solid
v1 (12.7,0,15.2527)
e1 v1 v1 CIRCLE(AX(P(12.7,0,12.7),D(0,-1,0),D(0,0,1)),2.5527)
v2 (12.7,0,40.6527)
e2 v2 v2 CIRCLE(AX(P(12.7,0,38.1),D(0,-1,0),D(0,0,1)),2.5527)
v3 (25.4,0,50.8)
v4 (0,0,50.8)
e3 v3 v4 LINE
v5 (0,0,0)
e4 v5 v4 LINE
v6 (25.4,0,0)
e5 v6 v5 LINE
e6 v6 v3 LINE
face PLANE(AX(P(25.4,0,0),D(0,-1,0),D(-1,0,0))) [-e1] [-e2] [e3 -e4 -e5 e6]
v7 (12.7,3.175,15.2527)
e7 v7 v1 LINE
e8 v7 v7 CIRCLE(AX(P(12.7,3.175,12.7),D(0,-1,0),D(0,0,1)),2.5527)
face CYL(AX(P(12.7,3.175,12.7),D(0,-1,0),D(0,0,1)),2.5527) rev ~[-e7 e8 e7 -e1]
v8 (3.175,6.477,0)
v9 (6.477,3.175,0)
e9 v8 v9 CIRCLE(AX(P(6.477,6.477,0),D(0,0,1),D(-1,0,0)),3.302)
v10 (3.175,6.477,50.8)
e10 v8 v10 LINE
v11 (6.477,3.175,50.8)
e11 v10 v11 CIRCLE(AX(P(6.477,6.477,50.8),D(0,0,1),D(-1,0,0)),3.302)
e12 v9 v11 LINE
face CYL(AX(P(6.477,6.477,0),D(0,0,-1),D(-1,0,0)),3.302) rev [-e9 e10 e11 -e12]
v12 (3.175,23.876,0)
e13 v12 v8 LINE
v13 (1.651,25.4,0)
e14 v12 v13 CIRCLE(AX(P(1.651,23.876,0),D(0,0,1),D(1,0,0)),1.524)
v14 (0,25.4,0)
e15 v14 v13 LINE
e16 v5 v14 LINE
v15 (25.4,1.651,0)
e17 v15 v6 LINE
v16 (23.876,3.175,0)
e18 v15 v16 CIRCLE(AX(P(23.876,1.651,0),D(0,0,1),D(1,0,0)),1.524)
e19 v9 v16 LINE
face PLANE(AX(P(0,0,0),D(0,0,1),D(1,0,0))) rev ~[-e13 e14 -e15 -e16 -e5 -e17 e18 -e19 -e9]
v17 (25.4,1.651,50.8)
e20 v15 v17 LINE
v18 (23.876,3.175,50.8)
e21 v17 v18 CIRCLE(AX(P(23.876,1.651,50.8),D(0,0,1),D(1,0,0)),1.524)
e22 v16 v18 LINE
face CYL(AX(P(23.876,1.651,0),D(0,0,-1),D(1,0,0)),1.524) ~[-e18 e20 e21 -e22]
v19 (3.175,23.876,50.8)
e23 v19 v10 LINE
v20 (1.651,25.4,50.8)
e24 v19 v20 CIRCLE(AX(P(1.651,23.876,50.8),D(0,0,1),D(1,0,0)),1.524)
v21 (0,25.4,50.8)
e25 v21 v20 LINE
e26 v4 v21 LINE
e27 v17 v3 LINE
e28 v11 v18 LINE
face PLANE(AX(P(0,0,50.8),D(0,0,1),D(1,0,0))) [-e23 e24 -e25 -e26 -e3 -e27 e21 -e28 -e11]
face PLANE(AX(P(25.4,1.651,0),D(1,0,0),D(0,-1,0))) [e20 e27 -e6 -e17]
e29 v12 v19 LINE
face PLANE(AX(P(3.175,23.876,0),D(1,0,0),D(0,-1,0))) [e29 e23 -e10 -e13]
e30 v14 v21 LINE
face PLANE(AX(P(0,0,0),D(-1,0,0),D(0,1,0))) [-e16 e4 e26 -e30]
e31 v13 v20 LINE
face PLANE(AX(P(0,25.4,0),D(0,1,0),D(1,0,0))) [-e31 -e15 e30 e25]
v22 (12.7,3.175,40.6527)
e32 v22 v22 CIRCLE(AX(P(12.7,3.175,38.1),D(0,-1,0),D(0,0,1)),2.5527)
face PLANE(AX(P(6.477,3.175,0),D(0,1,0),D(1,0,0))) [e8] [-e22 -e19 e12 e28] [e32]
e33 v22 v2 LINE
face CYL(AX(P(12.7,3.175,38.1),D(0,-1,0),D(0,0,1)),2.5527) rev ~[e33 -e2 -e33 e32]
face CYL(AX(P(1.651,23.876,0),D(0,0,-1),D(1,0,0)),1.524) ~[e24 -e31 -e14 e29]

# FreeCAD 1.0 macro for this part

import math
import FreeCAD as App
import Part
import Sketcher
from FreeCAD import Vector
Q = App.Units.Quantity

doc = App.newDocument("Part")
body = doc.addObject("PartDesign::Body", "Body")

sketch1 = body.newObject("Sketcher::SketchObject", "Sketch")
sketch1.AttachmentSupport = (doc.getObject("XY_Plane"), [""])
sketch1.MapMode = "FlatFace"
sketch1.addGeometry([
    Part.LineSegment(Vector(0, 0, 0), Vector(25.4, 0, 0)),
    Part.LineSegment(Vector(25.4, 0, 0), Vector(25.4, 1.7, 0)),
    Part.ArcOfCircle(Part.Circle(Vector(23.9, 1.7, 0), Vector(0, 0, 1), 1.5), math.radians(0), math.radians(90)),
    Part.LineSegment(Vector(23.9, 3.2, 0), Vector(6.5, 3.2, 0)),
    Part.ArcOfCircle(Part.Circle(Vector(6.5, 6.5, 0), Vector(0, 0, 1), 3.3), math.radians(180), math.radians(270)),
    Part.LineSegment(Vector(3.2, 6.5, 0), Vector(3.2, 23.9, 0)),
    Part.ArcOfCircle(Part.Circle(Vector(1.7, 23.9, 0), Vector(0, 0, 1), 1.5), math.radians(0), math.radians(90)),
    Part.LineSegment(Vector(1.7, 25.4, 0), Vector(0, 25.4, 0)),
    Part.LineSegment(Vector(0, 25.4, 0), Vector(0, 0, 0)),
], False)
sketch1.addConstraint([
    Sketcher.Constraint("Coincident", 0, 2, 1, 1),
    Sketcher.Constraint("Tangent", 1, 2, 2, 1),
    Sketcher.Constraint("Tangent", 2, 2, 3, 1),
    Sketcher.Constraint("Tangent", 3, 2, 4, 2),
    Sketcher.Constraint("Tangent", 4, 1, 5, 1),
    Sketcher.Constraint("Tangent", 5, 2, 6, 1),
    Sketcher.Constraint("Tangent", 6, 2, 7, 1),
    Sketcher.Constraint("Coincident", 7, 2, 8, 1),
    Sketcher.Constraint("Coincident", 8, 2, 0, 1),
    Sketcher.Constraint("Horizontal", 0),
    Sketcher.Constraint("Vertical", 1),
    Sketcher.Constraint("Horizontal", 3),
    Sketcher.Constraint("Vertical", 5),
    Sketcher.Constraint("Horizontal", 7),
    Sketcher.Constraint("Vertical", 8),
    Sketcher.Constraint("Coincident", 8, 2, -1, 1),
    Sketcher.Constraint("Equal", 2, 6),
    Sketcher.Constraint("Equal", 7, 1),
    Sketcher.Constraint("Equal", 3, 5),
    Sketcher.Constraint("DistanceX", 0, 1, 0, 2, Q("1 in")),
    Sketcher.Constraint("Radius", 2, Q("0.06 in")),
    Sketcher.Constraint("Radius", 4, Q("0.13 in")),
    Sketcher.Constraint("DistanceY", -1, 1, 2, 2, Q("0.125 in")),
])
pad1 = body.newObject("PartDesign::Pad", "Pad")
pad1.Profile = sketch1
pad1.Length = Q("2 in")

sketch2 = body.newObject("Sketcher::SketchObject", "Sketch001")
sketch2.AttachmentSupport = (doc.getObject("XZ_Plane"), [""])
sketch2.MapMode = "FlatFace"
sketch2.AttachmentOffset = App.Placement(Vector(0, 0, -0.125 * 25.4), App.Rotation())
sketch2.addGeometry([
    Part.Circle(Vector(12.7, 38.1, 0), Vector(0, 0, 1), 2.6),
    Part.Circle(Vector(12.7, 12.7, 0), Vector(0, 0, 1), 2.6),
], False)
sketch2.addConstraint([
    Sketcher.Constraint("Equal", 0, 1),
    Sketcher.Constraint("Vertical", 0, 3, 1, 3),
    Sketcher.Constraint("Diameter", 0, Q("0.201 in")),
    Sketcher.Constraint("DistanceY", 1, 3, 0, 3, Q("1 in")),
    Sketcher.Constraint("DistanceX", -1, 1, 0, 3, Q("0.5 in")),
    Sketcher.Constraint("DistanceY", -1, 1, 0, 3, Q("1.5 in")),
])
doc.recompute()
hole = body.newObject("PartDesign::Hole", "Hole")
hole.Profile = sketch2
hole.ThreadType = "None"
hole.Diameter = Q("0.201 in")
hole.DepthType = "ThroughAll"
hole.Reversed = True

doc.recompute()
